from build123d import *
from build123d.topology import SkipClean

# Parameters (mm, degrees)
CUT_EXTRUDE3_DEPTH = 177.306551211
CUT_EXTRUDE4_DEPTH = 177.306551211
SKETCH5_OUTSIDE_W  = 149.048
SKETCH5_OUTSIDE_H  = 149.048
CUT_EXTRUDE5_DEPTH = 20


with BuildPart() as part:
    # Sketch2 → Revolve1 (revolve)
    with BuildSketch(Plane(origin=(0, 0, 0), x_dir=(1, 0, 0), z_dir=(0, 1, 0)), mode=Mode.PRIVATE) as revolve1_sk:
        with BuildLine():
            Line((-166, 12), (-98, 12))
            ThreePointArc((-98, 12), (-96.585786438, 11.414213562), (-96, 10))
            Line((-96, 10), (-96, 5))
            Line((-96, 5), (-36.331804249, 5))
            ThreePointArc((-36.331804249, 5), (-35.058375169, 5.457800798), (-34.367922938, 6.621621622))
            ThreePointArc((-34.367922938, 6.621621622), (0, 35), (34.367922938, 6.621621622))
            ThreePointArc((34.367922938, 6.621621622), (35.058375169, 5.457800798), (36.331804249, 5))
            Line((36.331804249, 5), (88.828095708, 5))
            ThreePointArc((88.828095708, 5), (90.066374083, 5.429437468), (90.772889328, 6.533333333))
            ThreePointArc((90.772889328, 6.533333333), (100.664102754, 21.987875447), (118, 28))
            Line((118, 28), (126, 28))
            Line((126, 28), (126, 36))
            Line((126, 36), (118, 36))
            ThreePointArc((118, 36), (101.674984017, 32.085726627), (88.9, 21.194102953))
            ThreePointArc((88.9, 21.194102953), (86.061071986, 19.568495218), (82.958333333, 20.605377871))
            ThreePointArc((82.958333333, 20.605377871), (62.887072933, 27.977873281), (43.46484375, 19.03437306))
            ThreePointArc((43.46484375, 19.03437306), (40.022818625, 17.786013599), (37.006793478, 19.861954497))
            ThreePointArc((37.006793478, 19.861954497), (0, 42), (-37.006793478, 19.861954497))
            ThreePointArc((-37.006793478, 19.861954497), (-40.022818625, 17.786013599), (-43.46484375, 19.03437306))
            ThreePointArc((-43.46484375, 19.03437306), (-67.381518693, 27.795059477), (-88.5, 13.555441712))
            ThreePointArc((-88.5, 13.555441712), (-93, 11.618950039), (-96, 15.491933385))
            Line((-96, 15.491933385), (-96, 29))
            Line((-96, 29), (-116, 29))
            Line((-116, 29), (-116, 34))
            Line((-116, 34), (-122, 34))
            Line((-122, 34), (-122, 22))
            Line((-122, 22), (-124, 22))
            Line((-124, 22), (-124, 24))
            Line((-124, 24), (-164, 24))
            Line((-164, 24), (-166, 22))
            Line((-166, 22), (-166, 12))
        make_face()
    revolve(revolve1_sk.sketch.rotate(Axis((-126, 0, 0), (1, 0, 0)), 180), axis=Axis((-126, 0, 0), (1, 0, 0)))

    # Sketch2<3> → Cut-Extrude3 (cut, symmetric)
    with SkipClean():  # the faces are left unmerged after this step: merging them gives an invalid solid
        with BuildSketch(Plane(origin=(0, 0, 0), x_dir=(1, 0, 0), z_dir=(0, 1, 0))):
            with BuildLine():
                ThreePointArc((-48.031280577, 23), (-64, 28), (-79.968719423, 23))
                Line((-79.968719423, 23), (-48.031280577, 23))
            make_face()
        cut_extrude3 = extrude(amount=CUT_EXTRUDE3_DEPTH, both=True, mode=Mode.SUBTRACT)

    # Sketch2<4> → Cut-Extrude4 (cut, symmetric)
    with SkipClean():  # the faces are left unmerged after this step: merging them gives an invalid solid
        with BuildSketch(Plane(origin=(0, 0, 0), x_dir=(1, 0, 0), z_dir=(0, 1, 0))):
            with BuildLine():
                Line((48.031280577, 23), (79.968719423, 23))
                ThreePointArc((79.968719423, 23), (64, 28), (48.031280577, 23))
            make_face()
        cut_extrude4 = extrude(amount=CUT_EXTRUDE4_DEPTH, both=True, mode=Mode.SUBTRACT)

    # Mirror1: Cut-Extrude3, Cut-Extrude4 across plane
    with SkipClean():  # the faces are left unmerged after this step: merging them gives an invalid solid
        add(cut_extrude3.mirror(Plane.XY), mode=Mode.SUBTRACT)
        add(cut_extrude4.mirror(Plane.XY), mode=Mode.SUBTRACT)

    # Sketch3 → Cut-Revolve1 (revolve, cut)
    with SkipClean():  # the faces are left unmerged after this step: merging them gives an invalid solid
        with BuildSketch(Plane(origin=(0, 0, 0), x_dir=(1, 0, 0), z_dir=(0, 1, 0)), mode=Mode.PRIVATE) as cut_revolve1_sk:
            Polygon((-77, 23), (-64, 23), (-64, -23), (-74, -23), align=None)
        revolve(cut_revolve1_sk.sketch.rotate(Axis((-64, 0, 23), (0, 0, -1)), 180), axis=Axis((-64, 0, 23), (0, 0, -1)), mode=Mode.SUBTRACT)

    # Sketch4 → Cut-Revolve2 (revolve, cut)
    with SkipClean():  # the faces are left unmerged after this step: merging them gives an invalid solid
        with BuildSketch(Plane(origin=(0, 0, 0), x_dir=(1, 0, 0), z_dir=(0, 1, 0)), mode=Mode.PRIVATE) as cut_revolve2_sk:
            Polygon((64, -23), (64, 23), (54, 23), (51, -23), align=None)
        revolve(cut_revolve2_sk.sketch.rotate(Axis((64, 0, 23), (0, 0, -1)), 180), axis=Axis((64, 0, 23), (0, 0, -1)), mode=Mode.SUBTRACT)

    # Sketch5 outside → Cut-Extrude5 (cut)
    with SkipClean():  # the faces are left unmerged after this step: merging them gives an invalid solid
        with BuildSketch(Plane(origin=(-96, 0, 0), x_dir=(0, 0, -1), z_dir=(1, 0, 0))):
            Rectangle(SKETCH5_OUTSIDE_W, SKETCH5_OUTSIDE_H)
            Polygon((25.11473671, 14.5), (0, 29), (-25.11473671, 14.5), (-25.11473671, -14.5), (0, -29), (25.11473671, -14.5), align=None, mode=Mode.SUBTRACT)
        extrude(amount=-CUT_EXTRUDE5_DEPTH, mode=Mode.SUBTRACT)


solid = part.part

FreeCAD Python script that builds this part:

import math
import FreeCAD as App
import Part
import Sketcher
from FreeCAD import Vector
Q = App.Units.Quantity

doc = App.newDocument("Part")
body = doc.addObject("PartDesign::Body", "Body")

# Sketch on XZ plane
sketch1 = body.newObject("Sketcher::SketchObject", "Sketch")
sketch1.AttachmentSupport = (doc.getObject("XZ_Plane"), [""])
sketch1.MapMode = "FlatFace"
sketch1.addGeometry(Part.LineSegment(Vector(-166, -12, 0), Vector(-98, -12, 0)), False)
sketch1.addGeometry(Part.ArcOfCircle(Part.Circle(Vector(-98, -10, 0), Vector(0, 0, 1), 2), math.radians(-90), math.radians(0)), False)
sketch1.addGeometry(Part.LineSegment(Vector(-96, -10, 0), Vector(-96, -5, 0)), False)
sketch1.addGeometry(Part.LineSegment(Vector(-96, -5, 0), Vector(-36.331804, -5, 0)), False)
sketch1.addGeometry(Part.ArcOfCircle(Part.Circle(Vector(-36.331804, -7, 0), Vector(0, 0, 1), 2), math.radians(10.90547), math.radians(90)), False)
sketch1.addGeometry(Part.ArcOfCircle(Part.Circle(Vector(0, 0, 0), Vector(0, 0, 1), 35), math.radians(-169.09453), math.radians(-10.90547)), False)
sketch1.addGeometry(Part.ArcOfCircle(Part.Circle(Vector(36.331804, -7, 0), Vector(0, 0, 1), 2), math.radians(90), math.radians(169.09453)), False)
sketch1.addGeometry(Part.LineSegment(Vector(36.331804, -5, 0), Vector(88.828096, -5, 0)), False)
sketch1.addGeometry(Part.ArcOfCircle(Part.Circle(Vector(88.828096, -7, 0), Vector(0, 0, 1), 2), math.radians(13.493399), math.radians(90)), False)
sketch1.addGeometry(Part.ArcOfCircle(Part.Circle(Vector(118, 0, 0), Vector(0, 0, 1), 28), math.radians(-166.506601), math.radians(-90)), False)
sketch1.addGeometry(Part.LineSegment(Vector(118, -28, 0), Vector(126, -28, 0)), False)
sketch1.addGeometry(Part.LineSegment(Vector(126, -28, 0), Vector(126, -36, 0)), False)
sketch1.addGeometry(Part.LineSegment(Vector(126, -36, 0), Vector(118, -36, 0)), False)
sketch1.addGeometry(Part.ArcOfCircle(Part.Circle(Vector(118, 0, 0), Vector(0, 0, 1), 36), math.radians(-143.933412), math.radians(-90)), False)
sketch1.addGeometry(Part.ArcOfCircle(Part.Circle(Vector(85.666667, -23.549003, 0), Vector(0, 0, 1), 4), math.radians(36.066588), math.radians(132.616143)), False)
sketch1.addGeometry(Part.ArcOfCircle(Part.Circle(Vector(64, 0, 0), Vector(0, 0, 1), 28), math.radians(-137.172059), math.radians(-47.383857)), False)
sketch1.addGeometry(Part.ArcOfCircle(Part.Circle(Vector(40.53125, -21.753569, 0), Vector(0, 0, 1), 4), math.radians(42.827941), math.radians(151.777054)), False)
sketch1.addGeometry(Part.ArcOfCircle(Part.Circle(Vector(0, 0, 0), Vector(0, 0, 1), 42), math.radians(-151.777054), math.radians(-28.222946)), False)
sketch1.addGeometry(Part.ArcOfCircle(Part.Circle(Vector(-40.53125, -21.753569, 0), Vector(0, 0, 1), 4), math.radians(28.222946), math.radians(137.172059)), False)
sketch1.addGeometry(Part.ArcOfCircle(Part.Circle(Vector(-64, 0, 0), Vector(0, 0, 1), 28), math.radians(-151.044976), math.radians(-42.827941)), False)
sketch1.addGeometry(Part.ArcOfCircle(Part.Circle(Vector(-92, -15.491933, 0), Vector(0, 0, 1), 4), math.radians(28.955024), math.radians(180)), False)
sketch1.addGeometry(Part.LineSegment(Vector(-96, -15.491933, 0), Vector(-96, -29, 0)), False)
sketch1.addGeometry(Part.LineSegment(Vector(-96, -29, 0), Vector(-116, -29, 0)), False)
sketch1.addGeometry(Part.LineSegment(Vector(-116, -29, 0), Vector(-116, -34, 0)), False)
sketch1.addGeometry(Part.LineSegment(Vector(-116, -34, 0), Vector(-122, -34, 0)), False)
sketch1.addGeometry(Part.LineSegment(Vector(-122, -34, 0), Vector(-122, -22, 0)), False)
sketch1.addGeometry(Part.LineSegment(Vector(-122, -22, 0), Vector(-124, -22, 0)), False)
sketch1.addGeometry(Part.LineSegment(Vector(-124, -22, 0), Vector(-124, -24, 0)), False)
sketch1.addGeometry(Part.LineSegment(Vector(-124, -24, 0), Vector(-164, -24, 0)), False)
sketch1.addGeometry(Part.LineSegment(Vector(-164, -24, 0), Vector(-166, -22, 0)), False)
sketch1.addGeometry(Part.LineSegment(Vector(-166, -22, 0), Vector(-166, -12, 0)), False)
sketch1.addConstraint(Sketcher.Constraint("Tangent", 0, 2, 1, 1))
sketch1.addConstraint(Sketcher.Constraint("Tangent", 1, 2, 2, 1))
sketch1.addConstraint(Sketcher.Constraint("Coincident", 2, 2, 3, 1))
sketch1.addConstraint(Sketcher.Constraint("Tangent", 3, 2, 4, 2))
sketch1.addConstraint(Sketcher.Constraint("Tangent", 4, 1, 5, 1))
sketch1.addConstraint(Sketcher.Constraint("Tangent", 5, 2, 6, 2))
sketch1.addConstraint(Sketcher.Constraint("Tangent", 6, 1, 7, 1))
sketch1.addConstraint(Sketcher.Constraint("Tangent", 7, 2, 8, 2))
sketch1.addConstraint(Sketcher.Constraint("Tangent", 8, 1, 9, 1))
sketch1.addConstraint(Sketcher.Constraint("Tangent", 9, 2, 10, 1))
sketch1.addConstraint(Sketcher.Constraint("Coincident", 10, 2, 11, 1))
sketch1.addConstraint(Sketcher.Constraint("Coincident", 11, 2, 12, 1))
sketch1.addConstraint(Sketcher.Constraint("Tangent", 12, 2, 13, 2))
sketch1.addConstraint(Sketcher.Constraint("Tangent", 13, 1, 14, 1))
sketch1.addConstraint(Sketcher.Constraint("Tangent", 14, 2, 15, 2))
sketch1.addConstraint(Sketcher.Constraint("Tangent", 15, 1, 16, 1))
sketch1.addConstraint(Sketcher.Constraint("Tangent", 16, 2, 17, 2))
sketch1.addConstraint(Sketcher.Constraint("Tangent", 17, 1, 18, 1))
sketch1.addConstraint(Sketcher.Constraint("Tangent", 18, 2, 19, 2))
sketch1.addConstraint(Sketcher.Constraint("Tangent", 19, 1, 20, 1))
sketch1.addConstraint(Sketcher.Constraint("Tangent", 20, 2, 21, 1))
sketch1.addConstraint(Sketcher.Constraint("Coincident", 21, 2, 22, 1))
sketch1.addConstraint(Sketcher.Constraint("Coincident", 22, 2, 23, 1))
sketch1.addConstraint(Sketcher.Constraint("Coincident", 23, 2, 24, 1))
sketch1.addConstraint(Sketcher.Constraint("Coincident", 24, 2, 25, 1))
sketch1.addConstraint(Sketcher.Constraint("Coincident", 25, 2, 26, 1))
sketch1.addConstraint(Sketcher.Constraint("Coincident", 26, 2, 27, 1))
sketch1.addConstraint(Sketcher.Constraint("Coincident", 27, 2, 28, 1))
sketch1.addConstraint(Sketcher.Constraint("Coincident", 28, 2, 29, 1))
sketch1.addConstraint(Sketcher.Constraint("Coincident", 29, 2, 30, 1))
sketch1.addConstraint(Sketcher.Constraint("Coincident", 30, 2, 0, 1))
sketch1.addConstraint(Sketcher.Constraint("Horizontal", 0))
sketch1.addConstraint(Sketcher.Constraint("Vertical", 2))
sketch1.addConstraint(Sketcher.Constraint("Horizontal", 3))
sketch1.addConstraint(Sketcher.Constraint("Horizontal", 7))
sketch1.addConstraint(Sketcher.Constraint("Horizontal", 10))
sketch1.addConstraint(Sketcher.Constraint("Vertical", 11))
sketch1.addConstraint(Sketcher.Constraint("Horizontal", 12))
sketch1.addConstraint(Sketcher.Constraint("Vertical", 21))
sketch1.addConstraint(Sketcher.Constraint("Horizontal", 22))
sketch1.addConstraint(Sketcher.Constraint("Vertical", 23))
sketch1.addConstraint(Sketcher.Constraint("Horizontal", 24))
sketch1.addConstraint(Sketcher.Constraint("Vertical", 25))
sketch1.addConstraint(Sketcher.Constraint("Horizontal", 26))
sketch1.addConstraint(Sketcher.Constraint("Vertical", 27))
sketch1.addConstraint(Sketcher.Constraint("Horizontal", 28))
sketch1.addConstraint(Sketcher.Constraint("Vertical", 30))
sketch1.addConstraint(Sketcher.Constraint("Coincident", 5, 3, -1, 1))
sketch1.addConstraint(Sketcher.Constraint("Coincident", 17, 3, -1, 1))
sketch1.addConstraint(Sketcher.Constraint("Coincident", 13, 3, 9, 3))
sketch1.addConstraint(Sketcher.Constraint("Equal", 1, 4))
sketch1.addConstraint(Sketcher.Constraint("Equal", 4, 6))
sketch1.addConstraint(Sketcher.Constraint("Equal", 6, 8))
sketch1.addConstraint(Sketcher.Constraint("Equal", 9, 15))
sketch1.addConstraint(Sketcher.Constraint("Equal", 14, 16))
sketch1.addConstraint(Sketcher.Constraint("Equal", 16, 18))
sketch1.addConstraint(Sketcher.Constraint("Equal", 15, 19))
sketch1.addConstraint(Sketcher.Constraint("Equal", 18, 20))
sketch1.addConstraint(Sketcher.Constraint("Symmetric", 15, 3, 19, 3, -1, 1))
sketch1.addConstraint(Sketcher.Constraint("PointOnObject", 9, 3, -1))
sketch1.addConstraint(Sketcher.Constraint("PointOnObject", 15, 3, -1))
sketch1.addConstraint(Sketcher.Constraint("Horizontal", 4, 3, 6, 3))
sketch1.addConstraint(Sketcher.Constraint("Horizontal", 26, 2, 29, 2))
sketch1.addConstraint(Sketcher.Constraint("Vertical", 2, 2, 20, 2))
sketch1.addConstraint(Sketcher.Constraint("Equal", 12, 11))
sketch1.addConstraint(Sketcher.Constraint("Equal", 2, 23))
sketch1.addConstraint(Sketcher.Constraint("Equal", 26, 27))
sketch1.addConstraint(Sketcher.Constraint("Radius", 1, Q("2 mm")))
sketch1.addConstraint(Sketcher.Constraint("Radius", 5, Q("35 mm")))
sketch1.addConstraint(Sketcher.Constraint("Radius", 9, Q("28 mm")))
sketch1.addConstraint(Sketcher.Constraint("Radius", 13, Q("36 mm")))
sketch1.addConstraint(Sketcher.Constraint("Radius", 14, Q("4 mm")))
sketch1.addConstraint(Sketcher.Constraint("Radius", 17, Q("42 mm")))
sketch1.addConstraint(Sketcher.Constraint("DistanceX", 0, 1, 0, 2, Q("68 mm")))
sketch1.addConstraint(Sketcher.Constraint("DistanceX", 22, 2, 22, 1, Q("20 mm")))
sketch1.addConstraint(Sketcher.Constraint("DistanceX", 24, 2, 24, 1, Q("6 mm")))
sketch1.addConstraint(Sketcher.Constraint("DistanceX", 26, 2, 26, 1, Q("2 mm")))
sketch1.addConstraint(Sketcher.Constraint("DistanceX", 28, 2, 28, 1, Q("40 mm")))
sketch1.addConstraint(Sketcher.Constraint("DistanceY", 2, 1, 2, 2, Q("5 mm")))
sketch1.addConstraint(Sketcher.Constraint("DistanceY", 25, 1, 25, 2, Q("12 mm")))
sketch1.addConstraint(Sketcher.Constraint("DistanceY", 30, 1, 30, 2, Q("10 mm")))
sketch1.addConstraint(Sketcher.Constraint("DistanceX", 1, 3, -1, 1, Q("98 mm")))
sketch1.addConstraint(Sketcher.Constraint("DistanceY", 1, 3, -1, 1, Q("10 mm")))
sketch1.addConstraint(Sketcher.Constraint("DistanceX", -1, 1, 9, 3, Q("118 mm")))
sketch1.addConstraint(Sketcher.Constraint("DistanceX", -1, 1, 15, 3, Q("64 mm")))
revolution = body.newObject("PartDesign::Revolution", "Revolution")
revolution.Profile = sketch1
revolution.ReferenceAxis = (sketch1, ["H_Axis"])
revolution.Angle = 360

# Sketch on XZ plane
sketch2 = body.newObject("Sketcher::SketchObject", "Sketch001")
sketch2.AttachmentSupport = (doc.getObject("XZ_Plane"), [""])
sketch2.MapMode = "FlatFace"
sketch2.addGeometry(Part.ArcOfCircle(Part.Circle(Vector(-64, 0, 0), Vector(0, 0, 1), 28), math.radians(-124.771944), math.radians(-55.228056)), False)
sketch2.addGeometry(Part.LineSegment(Vector(-79.968719, -23, 0), Vector(-48.031281, -23, 0)), False)
sketch2.addConstraint(Sketcher.Constraint("Coincident", 0, 1, 1, 1))
sketch2.addConstraint(Sketcher.Constraint("Coincident", 1, 2, 0, 2))
sketch2.addConstraint(Sketcher.Constraint("Horizontal", 1))
sketch2.addConstraint(Sketcher.Constraint("PointOnObject", 0, 3, -1))
sketch2.addConstraint(Sketcher.Constraint("Radius", 0, Q("28 mm")))
sketch2.addConstraint(Sketcher.Constraint("DistanceX", 0, 3, -1, 1, Q("64 mm")))
sketch2.addConstraint(Sketcher.Constraint("DistanceY", 0, 1, -1, 1, Q("23 mm")))
pocket1 = body.newObject("PartDesign::Pocket", "Pocket")
pocket1.Profile = sketch2
pocket1.Length = 354.613102
pocket1.Midplane = True

# Sketch on XZ plane
sketch3 = body.newObject("Sketcher::SketchObject", "Sketch002")
sketch3.AttachmentSupport = (doc.getObject("XZ_Plane"), [""])
sketch3.MapMode = "FlatFace"
sketch3.addGeometry(Part.LineSegment(Vector(48.031281, -23, 0), Vector(79.968719, -23, 0)), False)
sketch3.addGeometry(Part.ArcOfCircle(Part.Circle(Vector(64, 0, 0), Vector(0, 0, 1), 28), math.radians(-124.771944), math.radians(-55.228056)), False)
sketch3.addConstraint(Sketcher.Constraint("Coincident", 0, 1, 1, 1))
sketch3.addConstraint(Sketcher.Constraint("Coincident", 1, 2, 0, 2))
sketch3.addConstraint(Sketcher.Constraint("Horizontal", 0))
sketch3.addConstraint(Sketcher.Constraint("PointOnObject", 1, 3, -1))
sketch3.addConstraint(Sketcher.Constraint("Radius", 1, Q("28 mm")))
sketch3.addConstraint(Sketcher.Constraint("DistanceX", -1, 1, 1, 3, Q("64 mm")))
sketch3.addConstraint(Sketcher.Constraint("DistanceY", 0, 1, -1, 1, Q("23 mm")))
pocket2 = body.newObject("PartDesign::Pocket", "Pocket001")
pocket2.Profile = sketch3
pocket2.Length = 354.613102
pocket2.Midplane = True
doc.recompute()

mirrored = body.newObject("PartDesign::Mirrored", "Mirrored")
mirrored.Originals = [pocket1, pocket2]
mirrored.MirrorPlane = (doc.getObject("XY_Plane"), [""])
body.Tip = mirrored

# Sketch on XZ plane
sketch4 = body.newObject("Sketcher::SketchObject", "Sketch003")
sketch4.AttachmentSupport = (doc.getObject("XZ_Plane"), [""])
sketch4.MapMode = "FlatFace"
sketch4.addGeometry(Part.LineSegment(Vector(-64, -23, 0), Vector(-77, -23, 0)), False)
sketch4.addGeometry(Part.LineSegment(Vector(-77, -23, 0), Vector(-74, 23, 0)), False)
sketch4.addGeometry(Part.LineSegment(Vector(-74, 23, 0), Vector(-64, 23, 0)), False)
sketch4.addGeometry(Part.LineSegment(Vector(-64, 23, 0), Vector(-64, -23, 0)), False)
sketch4.addGeometry(Part.LineSegment(Vector(-64, 23, 0), Vector(-64, -23, 0)), True)  # axis
sketch4.addConstraint(Sketcher.Constraint("Coincident", 0, 2, 1, 1))
sketch4.addConstraint(Sketcher.Constraint("Coincident", 1, 2, 2, 1))
sketch4.addConstraint(Sketcher.Constraint("Coincident", 2, 2, 3, 1))
sketch4.addConstraint(Sketcher.Constraint("Coincident", 3, 2, 0, 1))
sketch4.addConstraint(Sketcher.Constraint("Horizontal", 0))
sketch4.addConstraint(Sketcher.Constraint("Horizontal", 2))
sketch4.addConstraint(Sketcher.Constraint("Vertical", 3))
sketch4.addConstraint(Sketcher.Constraint("Vertical", 4))
sketch4.addConstraint(Sketcher.Constraint("Coincident", 4, 1, 2, 2))
sketch4.addConstraint(Sketcher.Constraint("Horizontal", 0, 2, 4, 2))
sketch4.addConstraint(Sketcher.Constraint("DistanceX", 0, 2, 0, 1, Q("13 mm")))
sketch4.addConstraint(Sketcher.Constraint("DistanceX", 2, 1, 2, 2, Q("10 mm")))
sketch4.addConstraint(Sketcher.Constraint("DistanceY", 3, 2, 3, 1, Q("46 mm")))
sketch4.addConstraint(Sketcher.Constraint("DistanceX", 0, 2, -1, 1, Q("77 mm")))
sketch4.addConstraint(Sketcher.Constraint("DistanceY", 0, 2, -1, 1, Q("23 mm")))
groove = body.newObject("PartDesign::Groove", "Groove")
groove.Profile = sketch4
groove.ReferenceAxis = (sketch4, ["Axis0"])
groove.Angle = 360

# Sketch on XZ plane
sketch5 = body.newObject("Sketcher::SketchObject", "Sketch004")
sketch5.AttachmentSupport = (doc.getObject("XZ_Plane"), [""])
sketch5.MapMode = "FlatFace"
sketch5.addGeometry(Part.LineSegment(Vector(64, 23, 0), Vector(64, -23, 0)), False)
sketch5.addGeometry(Part.LineSegment(Vector(64, -23, 0), Vector(54, -23, 0)), False)
sketch5.addGeometry(Part.LineSegment(Vector(54, -23, 0), Vector(51, 23, 0)), False)
sketch5.addGeometry(Part.LineSegment(Vector(51, 23, 0), Vector(64, 23, 0)), False)
sketch5.addGeometry(Part.LineSegment(Vector(64, 23, 0), Vector(64, -23, 0)), True)  # axis
sketch5.addConstraint(Sketcher.Constraint("Coincident", 0, 2, 1, 1))
sketch5.addConstraint(Sketcher.Constraint("Coincident", 1, 2, 2, 1))
sketch5.addConstraint(Sketcher.Constraint("Coincident", 2, 2, 3, 1))
sketch5.addConstraint(Sketcher.Constraint("Coincident", 3, 2, 0, 1))
sketch5.addConstraint(Sketcher.Constraint("Vertical", 0))
sketch5.addConstraint(Sketcher.Constraint("Horizontal", 1))
sketch5.addConstraint(Sketcher.Constraint("Horizontal", 3))
sketch5.addConstraint(Sketcher.Constraint("Vertical", 4))
sketch5.addConstraint(Sketcher.Constraint("Coincident", 4, 1, 3, 2))
sketch5.addConstraint(Sketcher.Constraint("Horizontal", 1, 2, 4, 2))
sketch5.addConstraint(Sketcher.Constraint("DistanceX", 1, 2, 1, 1, Q("10 mm")))
sketch5.addConstraint(Sketcher.Constraint("DistanceX", 3, 1, 3, 2, Q("13 mm")))
sketch5.addConstraint(Sketcher.Constraint("DistanceY", 0, 2, 0, 1, Q("46 mm")))
sketch5.addConstraint(Sketcher.Constraint("DistanceX", -1, 1, 0, 2, Q("64 mm")))
sketch5.addConstraint(Sketcher.Constraint("DistanceY", 0, 2, -1, 1, Q("23 mm")))
groove2 = body.newObject("PartDesign::Groove", "Groove001")
groove2.Profile = sketch5
groove2.ReferenceAxis = (sketch5, ["Axis0"])
groove2.Angle = 360

# Sketch on YZ plane
sketch6 = body.newObject("Sketcher::SketchObject", "Sketch005")
sketch6.AttachmentSupport = (doc.getObject("YZ_Plane"), [""])
sketch6.MapMode = "FlatFace"
sketch6.AttachmentOffset = App.Placement(Vector(0, 0, -96), App.Rotation())
sketch6.addGeometry(Part.LineSegment(Vector(74.524, 74.524, 0), Vector(-74.524, 74.524, 0)), False)
sketch6.addGeometry(Part.LineSegment(Vector(-74.524, 74.524, 0), Vector(-74.524, -74.524, 0)), False)
sketch6.addGeometry(Part.LineSegment(Vector(-74.524, -74.524, 0), Vector(74.524, -74.524, 0)), False)
sketch6.addGeometry(Part.LineSegment(Vector(74.524, -74.524, 0), Vector(74.524, 74.524, 0)), False)
sketch6.addGeometry(Part.LineSegment(Vector(29, 0, 0), Vector(14.5, -25.114737, 0)), False)
sketch6.addGeometry(Part.LineSegment(Vector(14.5, -25.114737, 0), Vector(-14.5, -25.114737, 0)), False)
sketch6.addGeometry(Part.LineSegment(Vector(-14.5, -25.114737, 0), Vector(-29, 0, 0)), False)
sketch6.addGeometry(Part.LineSegment(Vector(-29, 0, 0), Vector(-14.5, 25.114737, 0)), False)
sketch6.addGeometry(Part.LineSegment(Vector(-14.5, 25.114737, 0), Vector(14.5, 25.114737, 0)), False)
sketch6.addGeometry(Part.LineSegment(Vector(14.5, 25.114737, 0), Vector(29, 0, 0)), False)
sketch6.addConstraint(Sketcher.Constraint("Coincident", 0, 2, 1, 1))
sketch6.addConstraint(Sketcher.Constraint("Coincident", 1, 2, 2, 1))
sketch6.addConstraint(Sketcher.Constraint("Coincident", 2, 2, 3, 1))
sketch6.addConstraint(Sketcher.Constraint("Coincident", 3, 2, 0, 1))
sketch6.addConstraint(Sketcher.Constraint("Coincident", 4, 2, 5, 1))
sketch6.addConstraint(Sketcher.Constraint("Coincident", 5, 2, 6, 1))
sketch6.addConstraint(Sketcher.Constraint("Coincident", 6, 2, 7, 1))
sketch6.addConstraint(Sketcher.Constraint("Coincident", 7, 2, 8, 1))
sketch6.addConstraint(Sketcher.Constraint("Coincident", 8, 2, 9, 1))
sketch6.addConstraint(Sketcher.Constraint("Coincident", 9, 2, 4, 1))
sketch6.addConstraint(Sketcher.Constraint("Horizontal", 0))
sketch6.addConstraint(Sketcher.Constraint("Vertical", 1))
sketch6.addConstraint(Sketcher.Constraint("Horizontal", 2))
sketch6.addConstraint(Sketcher.Constraint("Vertical", 3))
sketch6.addConstraint(Sketcher.Constraint("Horizontal", 5))
sketch6.addConstraint(Sketcher.Constraint("Horizontal", 8))
sketch6.addConstraint(Sketcher.Constraint("Symmetric", 0, 2, 2, 2, -1, 1))
sketch6.addConstraint(Sketcher.Constraint("Symmetric", 4, 2, 7, 2, -1, 1))
sketch6.addConstraint(Sketcher.Constraint("Symmetric", 6, 2, 9, 2, -1, 1))
sketch6.addConstraint(Sketcher.Constraint("PointOnObject", 6, 2, -1))
sketch6.addConstraint(Sketcher.Constraint("Parallel", 6, 9))
sketch6.addConstraint(Sketcher.Constraint("Vertical", 5, 2, 7, 2))
sketch6.addConstraint(Sketcher.Constraint("Equal", 2, 1))
sketch6.addConstraint(Sketcher.Constraint("DistanceX", 5, 2, 5, 1, Q("29 mm")))
sketch6.addConstraint(Sketcher.Constraint("Angle", 4, Q("-120 deg")))
sketch6.addConstraint(Sketcher.Constraint("Distance", 4, Q("29 mm")))
sketch6.addConstraint(Sketcher.Constraint("DistanceX", 0, 2, 0, 1, Q("149.048 mm")))
pocket3 = body.newObject("PartDesign::Pocket", "Pocket002")
pocket3.Profile = sketch6
pocket3.Length = 20

doc.recompute()
